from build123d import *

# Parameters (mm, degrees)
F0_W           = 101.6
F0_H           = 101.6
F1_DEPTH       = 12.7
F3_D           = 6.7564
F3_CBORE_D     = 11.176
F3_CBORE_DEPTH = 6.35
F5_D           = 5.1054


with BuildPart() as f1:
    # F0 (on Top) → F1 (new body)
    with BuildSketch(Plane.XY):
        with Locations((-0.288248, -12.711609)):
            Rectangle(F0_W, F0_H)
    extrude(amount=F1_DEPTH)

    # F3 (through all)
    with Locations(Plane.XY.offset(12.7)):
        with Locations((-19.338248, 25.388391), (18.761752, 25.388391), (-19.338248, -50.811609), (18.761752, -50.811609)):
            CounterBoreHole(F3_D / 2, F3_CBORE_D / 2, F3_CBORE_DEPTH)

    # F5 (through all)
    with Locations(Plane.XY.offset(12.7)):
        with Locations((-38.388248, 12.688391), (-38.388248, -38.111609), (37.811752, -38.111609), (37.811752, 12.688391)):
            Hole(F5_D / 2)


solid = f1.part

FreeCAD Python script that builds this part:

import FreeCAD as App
import Part
import Sketcher
from FreeCAD import Vector
Q = App.Units.Quantity

doc = App.newDocument("Part")
body = doc.addObject("PartDesign::Body", "Body")

# Sketch on XY plane
sketch1 = doc.addObject("Sketcher::SketchObject", "Sketch")
body.addObject(sketch1)
sketch1.AttachmentSupport = (doc.XY_Plane, [""])
sketch1.MapMode = "FlatFace"
sketch1.addGeometry([
    Part.LineSegment(Vector(-51.088248, 38.088391, 0), Vector(-51.088248, -63.511609, 0)),
    Part.LineSegment(Vector(-51.088248, -63.511609, 0), Vector(50.511752, -63.511609, 0)),
    Part.LineSegment(Vector(50.511752, -63.511609, 0), Vector(50.511752, 38.088391, 0)),
    Part.LineSegment(Vector(50.511752, 38.088391, 0), Vector(-51.088248, 38.088391, 0)),
], False)
sketch1.addConstraint([
    Sketcher.Constraint("Coincident", 0, 2, 1, 1),
    Sketcher.Constraint("Coincident", 1, 2, 2, 1),
    Sketcher.Constraint("Coincident", 2, 2, 3, 1),
    Sketcher.Constraint("Coincident", 3, 2, 0, 1),
    Sketcher.Constraint("Vertical", 0),
    Sketcher.Constraint("Horizontal", 1),
    Sketcher.Constraint("Vertical", 2),
    Sketcher.Constraint("Horizontal", 3),
    Sketcher.Constraint("Equal", 3, 0),
    Sketcher.Constraint("DistanceX", 1, 1, 1, 2, Q("4 in")),
    Sketcher.Constraint("DistanceY", 0, 2, -1, 1, Q("63.511609 mm")),
    Sketcher.Constraint("DistanceX", 0, 2, -1, 1, Q("51.088248 mm")),
])
pad1 = doc.addObject("PartDesign::Pad", "Pad")
body.addObject(pad1)
pad1.Profile = sketch1
pad1.Length = Q("0.5 in")

# Sketch on XY plane
sketch2 = doc.addObject("Sketcher::SketchObject", "Sketch001")
body.addObject(sketch2)
sketch2.AttachmentSupport = (doc.XY_Plane, [""])
sketch2.MapMode = "FlatFace"
sketch2.AttachmentOffset = App.Placement(Vector(0, 0, 0.5 * 25.4), App.Rotation())
sketch2.addGeometry([
    Part.Circle(Vector(-19.338248, 25.388391, 0), Vector(0, 0, 1), 3.3782),
    Part.Circle(Vector(18.761752, 25.388391, 0), Vector(0, 0, 1), 3.3782),
    Part.Circle(Vector(-19.338248, -50.811609, 0), Vector(0, 0, 1), 3.3782),
    Part.Circle(Vector(18.761752, -50.811609, 0), Vector(0, 0, 1), 3.3782),
], False)
sketch2.addConstraint([
    Sketcher.Constraint("Equal", 0, 1),
    Sketcher.Constraint("Equal", 1, 2),
    Sketcher.Constraint("Equal", 2, 3),
    Sketcher.Constraint("Horizontal", 0, 3, 1, 3),
    Sketcher.Constraint("Horizontal", 2, 3, 3, 3),
    Sketcher.Constraint("Vertical", 0, 3, 2, 3),
    Sketcher.Constraint("Vertical", 1, 3, 3, 3),
    Sketcher.Constraint("Diameter", 0, Q("0.266 in")),
    Sketcher.Constraint("DistanceY", 2, 3, 0, 3, Q("3 in")),
    Sketcher.Constraint("DistanceX", 0, 3, 1, 3, Q("1.5 in")),
    Sketcher.Constraint("DistanceX", 0, 3, -1, 1, Q("19.338248 mm")),
    Sketcher.Constraint("DistanceY", -1, 1, 0, 3, Q("25.388391 mm")),
])
doc.recompute()
hole = doc.addObject("PartDesign::Hole", "Hole")
body.addObject(hole)
hole.Profile = sketch2
hole.ThreadType = "None"
hole.Diameter = Q("0.266 in")
hole.DepthType = "ThroughAll"
hole.HoleCutType = "Counterbore"
hole.HoleCutDiameter = Q("0.44 in")
hole.HoleCutDepth = Q("0.25 in")

# Sketch on XY plane
sketch3 = doc.addObject("Sketcher::SketchObject", "Sketch002")
body.addObject(sketch3)
sketch3.AttachmentSupport = (doc.XY_Plane, [""])
sketch3.MapMode = "FlatFace"
sketch3.AttachmentOffset = App.Placement(Vector(0, 0, 0.5 * 25.4), App.Rotation())
sketch3.addGeometry([
    Part.Circle(Vector(-38.388248, 12.688391, 0), Vector(0, 0, 1), 2.5527),
    Part.Circle(Vector(-38.388248, -38.111609, 0), Vector(0, 0, 1), 2.5527),
    Part.Circle(Vector(37.811752, -38.111609, 0), Vector(0, 0, 1), 2.5527),
    Part.Circle(Vector(37.811752, 12.688391, 0), Vector(0, 0, 1), 2.5527),
], False)
sketch3.addConstraint([
    Sketcher.Constraint("Equal", 0, 1),
    Sketcher.Constraint("Equal", 1, 2),
    Sketcher.Constraint("Equal", 2, 3),
    Sketcher.Constraint("Horizontal", 1, 3, 2, 3),
    Sketcher.Constraint("Horizontal", 0, 3, 3, 3),
    Sketcher.Constraint("Vertical", 0, 3, 1, 3),
    Sketcher.Constraint("Vertical", 2, 3, 3, 3),
    Sketcher.Constraint("Diameter", 0, Q("0.201 in")),
    Sketcher.Constraint("DistanceY", 1, 3, 0, 3, Q("2 in")),
    Sketcher.Constraint("DistanceX", 1, 3, 2, 3, Q("3 in")),
    Sketcher.Constraint("DistanceY", -1, 1, 0, 3, Q("12.688391 mm")),
    Sketcher.Constraint("DistanceX", -1, 1, 2, 3, Q("37.811752 mm")),
])
doc.recompute()
hole2 = doc.addObject("PartDesign::Hole", "Hole001")
body.addObject(hole2)
hole2.Profile = sketch3
hole2.ThreadType = "None"
hole2.Diameter = Q("0.201 in")
hole2.DepthType = "ThroughAll"

doc.recompute()
